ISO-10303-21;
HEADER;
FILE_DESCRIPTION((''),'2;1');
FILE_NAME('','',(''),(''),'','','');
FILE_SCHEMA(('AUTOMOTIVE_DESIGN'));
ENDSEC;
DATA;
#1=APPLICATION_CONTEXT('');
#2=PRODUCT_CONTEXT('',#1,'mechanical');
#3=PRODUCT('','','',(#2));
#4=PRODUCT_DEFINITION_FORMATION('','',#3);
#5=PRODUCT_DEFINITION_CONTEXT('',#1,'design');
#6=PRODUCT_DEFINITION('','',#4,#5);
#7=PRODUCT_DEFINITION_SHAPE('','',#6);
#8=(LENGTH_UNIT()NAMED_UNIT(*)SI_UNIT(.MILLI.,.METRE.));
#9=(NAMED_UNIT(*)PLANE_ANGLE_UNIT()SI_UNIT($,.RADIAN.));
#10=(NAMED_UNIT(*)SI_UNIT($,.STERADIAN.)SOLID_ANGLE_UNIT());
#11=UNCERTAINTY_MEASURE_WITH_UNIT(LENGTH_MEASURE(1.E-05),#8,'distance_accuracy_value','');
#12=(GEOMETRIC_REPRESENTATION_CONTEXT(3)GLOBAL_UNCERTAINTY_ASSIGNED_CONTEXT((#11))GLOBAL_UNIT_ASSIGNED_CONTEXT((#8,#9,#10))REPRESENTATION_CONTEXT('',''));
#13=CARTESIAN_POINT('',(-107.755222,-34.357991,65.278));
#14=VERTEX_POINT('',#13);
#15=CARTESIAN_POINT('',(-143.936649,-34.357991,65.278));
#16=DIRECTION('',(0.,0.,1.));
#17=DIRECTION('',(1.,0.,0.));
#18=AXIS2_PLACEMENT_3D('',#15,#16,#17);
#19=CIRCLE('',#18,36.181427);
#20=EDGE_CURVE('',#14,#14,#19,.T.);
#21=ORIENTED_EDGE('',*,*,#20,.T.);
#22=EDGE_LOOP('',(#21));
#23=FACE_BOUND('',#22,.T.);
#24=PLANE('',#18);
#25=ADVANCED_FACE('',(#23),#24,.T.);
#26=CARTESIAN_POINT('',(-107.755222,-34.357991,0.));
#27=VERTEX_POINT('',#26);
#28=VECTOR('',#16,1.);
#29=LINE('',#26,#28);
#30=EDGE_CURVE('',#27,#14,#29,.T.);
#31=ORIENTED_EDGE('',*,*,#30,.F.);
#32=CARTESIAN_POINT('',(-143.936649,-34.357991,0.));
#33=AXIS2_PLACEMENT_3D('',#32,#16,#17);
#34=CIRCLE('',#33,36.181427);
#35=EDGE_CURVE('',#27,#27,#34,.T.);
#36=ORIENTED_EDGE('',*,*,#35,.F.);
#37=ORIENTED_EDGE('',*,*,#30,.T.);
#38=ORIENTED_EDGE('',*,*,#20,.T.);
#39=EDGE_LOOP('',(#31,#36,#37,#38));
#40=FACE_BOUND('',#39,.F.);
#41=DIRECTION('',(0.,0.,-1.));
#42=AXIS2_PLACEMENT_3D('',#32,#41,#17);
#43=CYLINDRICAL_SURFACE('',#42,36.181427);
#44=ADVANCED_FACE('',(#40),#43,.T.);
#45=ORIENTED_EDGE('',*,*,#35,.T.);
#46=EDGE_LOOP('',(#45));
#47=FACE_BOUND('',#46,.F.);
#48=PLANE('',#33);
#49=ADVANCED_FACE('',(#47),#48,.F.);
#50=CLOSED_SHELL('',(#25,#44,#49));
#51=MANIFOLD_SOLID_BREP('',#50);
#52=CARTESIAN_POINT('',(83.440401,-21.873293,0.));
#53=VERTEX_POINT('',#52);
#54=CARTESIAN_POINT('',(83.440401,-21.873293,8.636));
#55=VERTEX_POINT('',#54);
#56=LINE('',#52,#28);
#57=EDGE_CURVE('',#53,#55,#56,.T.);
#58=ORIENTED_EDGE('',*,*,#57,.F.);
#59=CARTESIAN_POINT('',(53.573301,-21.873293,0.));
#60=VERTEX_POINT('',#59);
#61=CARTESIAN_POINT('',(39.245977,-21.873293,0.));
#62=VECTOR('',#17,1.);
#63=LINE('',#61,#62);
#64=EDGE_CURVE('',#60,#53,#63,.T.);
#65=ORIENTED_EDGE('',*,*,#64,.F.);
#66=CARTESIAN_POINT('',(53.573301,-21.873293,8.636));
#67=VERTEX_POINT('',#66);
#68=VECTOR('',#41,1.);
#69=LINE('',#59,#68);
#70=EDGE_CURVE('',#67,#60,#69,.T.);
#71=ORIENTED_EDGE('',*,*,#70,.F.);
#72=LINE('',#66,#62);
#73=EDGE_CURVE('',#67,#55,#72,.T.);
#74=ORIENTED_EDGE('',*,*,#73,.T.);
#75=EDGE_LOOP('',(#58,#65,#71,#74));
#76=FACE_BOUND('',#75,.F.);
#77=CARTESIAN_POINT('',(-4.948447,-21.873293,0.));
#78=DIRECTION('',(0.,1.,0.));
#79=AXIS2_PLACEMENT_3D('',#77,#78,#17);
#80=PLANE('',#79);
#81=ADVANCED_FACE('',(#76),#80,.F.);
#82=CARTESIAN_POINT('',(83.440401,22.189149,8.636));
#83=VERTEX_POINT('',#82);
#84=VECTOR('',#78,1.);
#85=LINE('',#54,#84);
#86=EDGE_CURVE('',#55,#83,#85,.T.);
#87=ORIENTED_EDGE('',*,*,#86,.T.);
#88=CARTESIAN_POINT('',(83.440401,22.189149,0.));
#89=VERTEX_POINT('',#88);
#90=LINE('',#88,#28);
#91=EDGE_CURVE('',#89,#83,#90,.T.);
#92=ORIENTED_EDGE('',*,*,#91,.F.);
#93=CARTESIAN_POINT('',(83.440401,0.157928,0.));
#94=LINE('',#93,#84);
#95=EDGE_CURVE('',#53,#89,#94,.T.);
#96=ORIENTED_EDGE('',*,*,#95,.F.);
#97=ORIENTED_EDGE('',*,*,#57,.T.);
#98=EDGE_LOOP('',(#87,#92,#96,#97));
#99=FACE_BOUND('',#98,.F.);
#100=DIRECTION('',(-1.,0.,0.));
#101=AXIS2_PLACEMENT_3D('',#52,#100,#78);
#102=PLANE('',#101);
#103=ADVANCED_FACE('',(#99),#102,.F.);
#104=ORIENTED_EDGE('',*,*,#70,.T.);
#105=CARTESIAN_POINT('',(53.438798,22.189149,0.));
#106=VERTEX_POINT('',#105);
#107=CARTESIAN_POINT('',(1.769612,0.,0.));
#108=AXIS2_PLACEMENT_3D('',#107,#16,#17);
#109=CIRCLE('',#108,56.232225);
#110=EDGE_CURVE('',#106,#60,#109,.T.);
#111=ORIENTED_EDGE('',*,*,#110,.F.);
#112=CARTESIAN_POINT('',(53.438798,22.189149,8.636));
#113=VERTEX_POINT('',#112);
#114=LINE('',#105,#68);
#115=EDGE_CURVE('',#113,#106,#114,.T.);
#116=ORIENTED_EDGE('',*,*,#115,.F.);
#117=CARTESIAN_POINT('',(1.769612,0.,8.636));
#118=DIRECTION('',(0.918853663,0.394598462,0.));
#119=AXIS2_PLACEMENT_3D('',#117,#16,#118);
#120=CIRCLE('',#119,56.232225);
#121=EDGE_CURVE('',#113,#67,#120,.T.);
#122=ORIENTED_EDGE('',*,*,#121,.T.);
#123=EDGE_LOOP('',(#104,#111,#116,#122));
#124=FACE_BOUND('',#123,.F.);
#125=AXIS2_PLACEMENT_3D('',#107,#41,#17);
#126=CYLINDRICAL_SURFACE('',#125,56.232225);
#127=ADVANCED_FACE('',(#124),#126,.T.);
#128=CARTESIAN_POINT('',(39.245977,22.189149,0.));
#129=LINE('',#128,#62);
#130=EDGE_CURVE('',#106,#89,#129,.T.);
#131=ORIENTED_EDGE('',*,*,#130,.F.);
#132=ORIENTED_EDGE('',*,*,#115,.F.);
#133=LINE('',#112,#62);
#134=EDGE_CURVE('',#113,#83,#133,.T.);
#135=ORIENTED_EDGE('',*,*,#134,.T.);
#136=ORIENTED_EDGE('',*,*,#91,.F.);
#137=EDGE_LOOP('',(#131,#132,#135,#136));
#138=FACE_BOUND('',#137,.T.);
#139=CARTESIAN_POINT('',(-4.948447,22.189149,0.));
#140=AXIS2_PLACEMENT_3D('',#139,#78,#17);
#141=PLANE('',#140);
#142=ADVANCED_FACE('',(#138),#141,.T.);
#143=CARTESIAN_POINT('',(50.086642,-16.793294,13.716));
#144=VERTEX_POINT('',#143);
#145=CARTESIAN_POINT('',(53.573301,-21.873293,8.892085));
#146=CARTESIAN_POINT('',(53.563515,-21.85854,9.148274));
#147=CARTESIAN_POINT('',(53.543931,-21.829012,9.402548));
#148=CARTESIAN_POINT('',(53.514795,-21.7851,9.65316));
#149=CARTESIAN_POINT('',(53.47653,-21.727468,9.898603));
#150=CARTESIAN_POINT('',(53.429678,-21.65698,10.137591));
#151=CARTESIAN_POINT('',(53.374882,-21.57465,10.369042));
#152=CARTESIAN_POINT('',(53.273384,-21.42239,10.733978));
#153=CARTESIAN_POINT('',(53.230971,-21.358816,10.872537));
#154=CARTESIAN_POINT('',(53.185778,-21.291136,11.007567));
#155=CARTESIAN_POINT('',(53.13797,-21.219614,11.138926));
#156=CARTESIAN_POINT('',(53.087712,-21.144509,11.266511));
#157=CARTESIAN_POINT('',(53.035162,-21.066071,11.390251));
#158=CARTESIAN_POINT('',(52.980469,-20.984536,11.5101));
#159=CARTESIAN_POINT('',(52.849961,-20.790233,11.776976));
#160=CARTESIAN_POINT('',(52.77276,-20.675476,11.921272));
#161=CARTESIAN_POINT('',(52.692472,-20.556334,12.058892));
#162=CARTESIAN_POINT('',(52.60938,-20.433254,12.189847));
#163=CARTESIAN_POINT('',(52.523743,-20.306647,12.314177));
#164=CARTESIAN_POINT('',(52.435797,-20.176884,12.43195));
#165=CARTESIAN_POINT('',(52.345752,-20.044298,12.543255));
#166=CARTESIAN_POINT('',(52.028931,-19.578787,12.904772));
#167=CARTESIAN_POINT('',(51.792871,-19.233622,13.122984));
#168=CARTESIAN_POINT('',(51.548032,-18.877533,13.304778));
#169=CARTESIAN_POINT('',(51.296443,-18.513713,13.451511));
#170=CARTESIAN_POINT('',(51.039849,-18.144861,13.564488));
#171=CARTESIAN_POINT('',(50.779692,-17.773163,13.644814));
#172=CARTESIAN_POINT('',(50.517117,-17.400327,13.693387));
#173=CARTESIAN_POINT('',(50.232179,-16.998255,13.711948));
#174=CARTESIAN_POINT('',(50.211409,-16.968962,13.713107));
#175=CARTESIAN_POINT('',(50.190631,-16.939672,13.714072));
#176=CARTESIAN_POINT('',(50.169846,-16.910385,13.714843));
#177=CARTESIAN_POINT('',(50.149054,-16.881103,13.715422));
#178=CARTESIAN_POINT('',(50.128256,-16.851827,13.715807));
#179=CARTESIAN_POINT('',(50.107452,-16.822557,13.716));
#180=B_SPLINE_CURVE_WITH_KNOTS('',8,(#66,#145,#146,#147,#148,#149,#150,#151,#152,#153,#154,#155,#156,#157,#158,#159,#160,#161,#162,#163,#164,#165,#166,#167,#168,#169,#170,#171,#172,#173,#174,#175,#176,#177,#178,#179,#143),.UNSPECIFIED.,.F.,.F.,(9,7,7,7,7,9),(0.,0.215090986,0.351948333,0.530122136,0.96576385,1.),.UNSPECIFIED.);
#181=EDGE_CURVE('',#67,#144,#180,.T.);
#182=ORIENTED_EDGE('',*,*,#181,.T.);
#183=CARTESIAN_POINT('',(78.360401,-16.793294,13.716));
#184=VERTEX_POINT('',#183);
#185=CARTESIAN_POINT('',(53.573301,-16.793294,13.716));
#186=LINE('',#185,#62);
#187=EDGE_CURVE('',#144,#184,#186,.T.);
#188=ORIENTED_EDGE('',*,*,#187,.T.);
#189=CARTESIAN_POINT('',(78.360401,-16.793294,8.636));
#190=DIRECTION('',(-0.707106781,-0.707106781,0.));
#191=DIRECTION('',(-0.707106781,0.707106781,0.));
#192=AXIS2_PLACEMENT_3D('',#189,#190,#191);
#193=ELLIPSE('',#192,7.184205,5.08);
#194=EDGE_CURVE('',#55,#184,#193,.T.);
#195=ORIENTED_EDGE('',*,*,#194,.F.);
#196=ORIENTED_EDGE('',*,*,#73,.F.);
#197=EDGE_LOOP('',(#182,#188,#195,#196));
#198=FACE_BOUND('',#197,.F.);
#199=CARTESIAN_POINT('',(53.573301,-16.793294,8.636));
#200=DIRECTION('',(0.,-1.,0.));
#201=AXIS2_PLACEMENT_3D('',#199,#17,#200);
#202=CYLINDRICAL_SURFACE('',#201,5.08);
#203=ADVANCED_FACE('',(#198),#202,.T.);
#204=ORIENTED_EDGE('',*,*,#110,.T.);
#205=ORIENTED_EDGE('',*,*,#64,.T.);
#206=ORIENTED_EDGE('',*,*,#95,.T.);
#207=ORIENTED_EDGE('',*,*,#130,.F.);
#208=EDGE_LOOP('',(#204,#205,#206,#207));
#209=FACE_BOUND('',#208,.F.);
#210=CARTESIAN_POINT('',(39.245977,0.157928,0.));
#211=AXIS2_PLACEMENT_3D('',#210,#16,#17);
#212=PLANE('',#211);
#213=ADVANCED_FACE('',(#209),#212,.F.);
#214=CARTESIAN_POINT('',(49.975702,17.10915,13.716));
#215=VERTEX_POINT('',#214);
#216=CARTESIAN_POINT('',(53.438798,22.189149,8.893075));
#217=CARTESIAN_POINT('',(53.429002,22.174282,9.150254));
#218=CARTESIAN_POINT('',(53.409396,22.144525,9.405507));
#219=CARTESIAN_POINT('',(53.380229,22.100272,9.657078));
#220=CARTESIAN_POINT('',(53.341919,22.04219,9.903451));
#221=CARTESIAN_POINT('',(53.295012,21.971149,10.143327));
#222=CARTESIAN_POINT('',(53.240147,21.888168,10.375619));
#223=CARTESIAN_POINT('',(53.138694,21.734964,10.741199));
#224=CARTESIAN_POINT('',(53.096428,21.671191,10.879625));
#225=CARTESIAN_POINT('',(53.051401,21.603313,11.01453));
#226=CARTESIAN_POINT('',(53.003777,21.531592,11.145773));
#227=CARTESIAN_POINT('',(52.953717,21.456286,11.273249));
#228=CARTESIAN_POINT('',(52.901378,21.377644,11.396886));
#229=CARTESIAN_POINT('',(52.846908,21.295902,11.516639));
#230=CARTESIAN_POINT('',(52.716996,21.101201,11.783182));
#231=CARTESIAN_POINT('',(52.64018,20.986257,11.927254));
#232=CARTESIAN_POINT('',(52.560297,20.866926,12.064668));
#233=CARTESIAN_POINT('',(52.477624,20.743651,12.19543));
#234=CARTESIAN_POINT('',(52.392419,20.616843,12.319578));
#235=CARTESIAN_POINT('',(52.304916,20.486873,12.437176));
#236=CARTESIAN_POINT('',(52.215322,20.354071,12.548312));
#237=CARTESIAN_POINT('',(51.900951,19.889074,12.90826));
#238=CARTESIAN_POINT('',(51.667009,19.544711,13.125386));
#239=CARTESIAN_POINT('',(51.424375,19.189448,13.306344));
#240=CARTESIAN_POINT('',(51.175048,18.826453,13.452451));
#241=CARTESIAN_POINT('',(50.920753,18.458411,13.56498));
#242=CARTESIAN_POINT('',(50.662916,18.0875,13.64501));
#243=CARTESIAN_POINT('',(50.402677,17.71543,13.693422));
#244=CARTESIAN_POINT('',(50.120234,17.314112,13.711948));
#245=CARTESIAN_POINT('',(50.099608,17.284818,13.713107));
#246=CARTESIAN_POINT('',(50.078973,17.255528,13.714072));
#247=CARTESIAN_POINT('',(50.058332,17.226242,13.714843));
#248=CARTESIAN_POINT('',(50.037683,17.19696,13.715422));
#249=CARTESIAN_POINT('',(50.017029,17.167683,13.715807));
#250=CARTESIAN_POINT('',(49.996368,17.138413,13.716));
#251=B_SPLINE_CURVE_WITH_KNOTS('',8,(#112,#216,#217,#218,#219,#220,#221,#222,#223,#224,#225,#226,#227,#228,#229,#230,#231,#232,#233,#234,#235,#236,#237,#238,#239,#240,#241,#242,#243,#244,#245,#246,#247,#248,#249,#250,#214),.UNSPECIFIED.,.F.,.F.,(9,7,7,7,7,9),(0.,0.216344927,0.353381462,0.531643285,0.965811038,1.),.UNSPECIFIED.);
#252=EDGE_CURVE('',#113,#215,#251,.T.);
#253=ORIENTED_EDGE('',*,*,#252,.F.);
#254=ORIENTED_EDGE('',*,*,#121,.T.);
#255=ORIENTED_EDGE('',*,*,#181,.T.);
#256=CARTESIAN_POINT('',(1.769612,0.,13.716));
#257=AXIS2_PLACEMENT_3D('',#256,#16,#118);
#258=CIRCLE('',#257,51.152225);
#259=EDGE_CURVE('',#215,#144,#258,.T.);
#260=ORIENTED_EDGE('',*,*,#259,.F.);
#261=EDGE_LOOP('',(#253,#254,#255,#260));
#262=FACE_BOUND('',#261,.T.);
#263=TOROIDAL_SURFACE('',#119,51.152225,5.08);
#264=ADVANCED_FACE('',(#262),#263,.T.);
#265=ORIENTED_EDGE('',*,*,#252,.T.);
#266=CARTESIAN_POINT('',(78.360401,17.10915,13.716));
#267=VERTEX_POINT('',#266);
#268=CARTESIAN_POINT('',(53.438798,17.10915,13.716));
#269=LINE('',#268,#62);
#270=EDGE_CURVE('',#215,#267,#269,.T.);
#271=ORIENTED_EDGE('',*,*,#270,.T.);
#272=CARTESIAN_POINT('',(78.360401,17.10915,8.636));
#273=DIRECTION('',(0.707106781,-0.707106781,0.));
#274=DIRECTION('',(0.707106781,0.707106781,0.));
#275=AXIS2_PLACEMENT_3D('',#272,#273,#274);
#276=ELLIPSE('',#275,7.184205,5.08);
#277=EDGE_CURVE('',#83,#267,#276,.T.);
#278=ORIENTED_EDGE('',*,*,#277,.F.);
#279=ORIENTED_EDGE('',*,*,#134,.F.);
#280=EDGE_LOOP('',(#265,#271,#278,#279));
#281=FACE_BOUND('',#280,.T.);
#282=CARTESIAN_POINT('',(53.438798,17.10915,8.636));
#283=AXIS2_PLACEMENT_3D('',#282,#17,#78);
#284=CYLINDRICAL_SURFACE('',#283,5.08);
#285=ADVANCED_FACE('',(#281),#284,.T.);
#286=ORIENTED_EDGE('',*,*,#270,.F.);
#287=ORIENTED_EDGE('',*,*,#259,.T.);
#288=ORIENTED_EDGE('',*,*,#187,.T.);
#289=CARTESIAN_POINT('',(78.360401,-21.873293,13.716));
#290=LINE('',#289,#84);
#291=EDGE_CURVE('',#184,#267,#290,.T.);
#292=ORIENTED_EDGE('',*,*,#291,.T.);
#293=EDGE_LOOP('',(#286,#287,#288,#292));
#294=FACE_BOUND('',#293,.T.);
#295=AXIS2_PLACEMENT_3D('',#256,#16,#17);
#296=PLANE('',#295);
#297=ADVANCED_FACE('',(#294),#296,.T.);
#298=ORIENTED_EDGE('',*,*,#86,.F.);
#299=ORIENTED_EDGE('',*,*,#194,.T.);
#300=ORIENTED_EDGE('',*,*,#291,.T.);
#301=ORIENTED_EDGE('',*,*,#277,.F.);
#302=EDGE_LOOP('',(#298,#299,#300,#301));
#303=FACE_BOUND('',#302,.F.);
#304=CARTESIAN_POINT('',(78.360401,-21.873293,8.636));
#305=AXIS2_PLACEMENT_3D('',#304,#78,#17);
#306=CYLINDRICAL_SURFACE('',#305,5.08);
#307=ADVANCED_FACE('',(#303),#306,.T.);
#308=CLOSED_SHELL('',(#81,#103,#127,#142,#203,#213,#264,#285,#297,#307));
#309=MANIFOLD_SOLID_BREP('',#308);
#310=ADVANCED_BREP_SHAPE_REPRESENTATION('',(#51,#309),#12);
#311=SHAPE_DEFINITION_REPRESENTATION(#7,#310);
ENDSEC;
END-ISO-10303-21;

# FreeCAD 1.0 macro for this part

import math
import FreeCAD as App
import Part
import Sketcher
from FreeCAD import Vector
Q = App.Units.Quantity


def edges_at(feature, points):
    """Names of the edges that pass closest to the given points."""
    edges = feature.Shape.Edges
    near = lambda p: min(range(len(edges)), key=lambda i: edges[i].distToShape(Part.Vertex(*p))[0])
    return sorted({f"Edge{near(p) + 1}" for p in points})

doc = App.newDocument("Part")
params = doc.addObject("Spreadsheet::Sheet", "Params")
for row, (alias, value) in enumerate([
    ("pad1_length", "0.54 in"),
    ("fillet_radius", "0.2 in"),
    ("pad2_length", "2.57 in"),
], start=1):
    params.set(f"A{row}", alias)
    params.set(f"B{row}", "=" + value)
    params.setAlias(f"B{row}", alias)

body = doc.addObject("PartDesign::Body", "Body")

# Sketch on XY plane
sketch1 = body.newObject("Sketcher::SketchObject", "Sketch")
sketch1.AttachmentSupport = (doc.getObject("XY_Plane"), [""])
sketch1.MapMode = "FlatFace"
sketch1.addGeometry(Part.LineSegment(Vector(53.573301, -21.873293, 0), Vector(83.440401, -21.873293, 0)), False)
sketch1.addGeometry(Part.LineSegment(Vector(83.440401, -21.873293, 0), Vector(83.440401, 22.189149, 0)), False)
sketch1.addGeometry(Part.LineSegment(Vector(83.440401, 22.189149, 0), Vector(53.438798, 22.189149, 0)), False)
sketch1.addGeometry(Part.ArcOfCircle(Part.Circle(Vector(1.769612, 0, 0), Vector(0, 0, 1), 56.232225), math.radians(23.240934), math.radians(337.108862)), False)
sketch1.addConstraint(Sketcher.Constraint("Coincident", 0, 2, 1, 1))
sketch1.addConstraint(Sketcher.Constraint("Coincident", 1, 2, 2, 1))
sketch1.addConstraint(Sketcher.Constraint("Coincident", 2, 2, 3, 1))
sketch1.addConstraint(Sketcher.Constraint("Coincident", 3, 2, 0, 1))
sketch1.addConstraint(Sketcher.Constraint("Horizontal", 0))
sketch1.addConstraint(Sketcher.Constraint("Vertical", 1))
sketch1.addConstraint(Sketcher.Constraint("Horizontal", 2))
sketch1.addConstraint(Sketcher.Constraint("PointOnObject", 3, 3, -1))
sketch1.addConstraint(Sketcher.Constraint("DistanceX", 0, 1, 0, 2, Q("29.8671 mm")))
sketch1.addConstraint(Sketcher.Constraint("Radius", 3, Q("56.232225 mm")))
sketch1.addConstraint(Sketcher.Constraint("DistanceX", -1, 1, 0, 2, Q("83.440401 mm")))
sketch1.addConstraint(Sketcher.Constraint("DistanceX", 2, 2, 2, 1, Q("30.001603 mm")))
sketch1.addConstraint(Sketcher.Constraint("DistanceY", 1, 1, 1, 2, Q("44.062443 mm")))
pad1 = body.newObject("PartDesign::Pad", "Pad")
pad1.Profile = sketch1
pad1.setExpression("Length", "Params.pad1_length")
doc.recompute()

fillet = body.newObject("PartDesign::Fillet", "Fillet")
fillet.Base = (pad1, edges_at(pad1, [
    (83.44, 0.158, 13.716),
    (68.44, 22.189, 13.716),
    (-54.462, -0.172, 13.716),
    (68.507, -21.873, 13.716),
]))
fillet.setExpression("Radius", "Params.fillet_radius")
body2 = doc.addObject("PartDesign::Body", "Body001")

# Sketch on XY plane
sketch2 = body2.newObject("Sketcher::SketchObject", "Sketch001")
sketch2.AttachmentSupport = (doc.getObject("XY_Plane001"), [""])
sketch2.MapMode = "FlatFace"
sketch2.addGeometry(Part.Circle(Vector(-143.936649, -34.357991, 0), Vector(0, 0, 1), 36.181427), False)
sketch2.addConstraint(Sketcher.Constraint("Diameter", 0, Q("72.362854 mm")))
sketch2.addConstraint(Sketcher.Constraint("DistanceX", 0, 3, -1, 1, Q("143.936649 mm")))
sketch2.addConstraint(Sketcher.Constraint("DistanceY", 0, 3, -1, 1, Q("34.357991 mm")))
pad2 = body2.newObject("PartDesign::Pad", "Pad001")
pad2.Profile = sketch2
pad2.setExpression("Length", "Params.pad2_length")

doc.recompute()
